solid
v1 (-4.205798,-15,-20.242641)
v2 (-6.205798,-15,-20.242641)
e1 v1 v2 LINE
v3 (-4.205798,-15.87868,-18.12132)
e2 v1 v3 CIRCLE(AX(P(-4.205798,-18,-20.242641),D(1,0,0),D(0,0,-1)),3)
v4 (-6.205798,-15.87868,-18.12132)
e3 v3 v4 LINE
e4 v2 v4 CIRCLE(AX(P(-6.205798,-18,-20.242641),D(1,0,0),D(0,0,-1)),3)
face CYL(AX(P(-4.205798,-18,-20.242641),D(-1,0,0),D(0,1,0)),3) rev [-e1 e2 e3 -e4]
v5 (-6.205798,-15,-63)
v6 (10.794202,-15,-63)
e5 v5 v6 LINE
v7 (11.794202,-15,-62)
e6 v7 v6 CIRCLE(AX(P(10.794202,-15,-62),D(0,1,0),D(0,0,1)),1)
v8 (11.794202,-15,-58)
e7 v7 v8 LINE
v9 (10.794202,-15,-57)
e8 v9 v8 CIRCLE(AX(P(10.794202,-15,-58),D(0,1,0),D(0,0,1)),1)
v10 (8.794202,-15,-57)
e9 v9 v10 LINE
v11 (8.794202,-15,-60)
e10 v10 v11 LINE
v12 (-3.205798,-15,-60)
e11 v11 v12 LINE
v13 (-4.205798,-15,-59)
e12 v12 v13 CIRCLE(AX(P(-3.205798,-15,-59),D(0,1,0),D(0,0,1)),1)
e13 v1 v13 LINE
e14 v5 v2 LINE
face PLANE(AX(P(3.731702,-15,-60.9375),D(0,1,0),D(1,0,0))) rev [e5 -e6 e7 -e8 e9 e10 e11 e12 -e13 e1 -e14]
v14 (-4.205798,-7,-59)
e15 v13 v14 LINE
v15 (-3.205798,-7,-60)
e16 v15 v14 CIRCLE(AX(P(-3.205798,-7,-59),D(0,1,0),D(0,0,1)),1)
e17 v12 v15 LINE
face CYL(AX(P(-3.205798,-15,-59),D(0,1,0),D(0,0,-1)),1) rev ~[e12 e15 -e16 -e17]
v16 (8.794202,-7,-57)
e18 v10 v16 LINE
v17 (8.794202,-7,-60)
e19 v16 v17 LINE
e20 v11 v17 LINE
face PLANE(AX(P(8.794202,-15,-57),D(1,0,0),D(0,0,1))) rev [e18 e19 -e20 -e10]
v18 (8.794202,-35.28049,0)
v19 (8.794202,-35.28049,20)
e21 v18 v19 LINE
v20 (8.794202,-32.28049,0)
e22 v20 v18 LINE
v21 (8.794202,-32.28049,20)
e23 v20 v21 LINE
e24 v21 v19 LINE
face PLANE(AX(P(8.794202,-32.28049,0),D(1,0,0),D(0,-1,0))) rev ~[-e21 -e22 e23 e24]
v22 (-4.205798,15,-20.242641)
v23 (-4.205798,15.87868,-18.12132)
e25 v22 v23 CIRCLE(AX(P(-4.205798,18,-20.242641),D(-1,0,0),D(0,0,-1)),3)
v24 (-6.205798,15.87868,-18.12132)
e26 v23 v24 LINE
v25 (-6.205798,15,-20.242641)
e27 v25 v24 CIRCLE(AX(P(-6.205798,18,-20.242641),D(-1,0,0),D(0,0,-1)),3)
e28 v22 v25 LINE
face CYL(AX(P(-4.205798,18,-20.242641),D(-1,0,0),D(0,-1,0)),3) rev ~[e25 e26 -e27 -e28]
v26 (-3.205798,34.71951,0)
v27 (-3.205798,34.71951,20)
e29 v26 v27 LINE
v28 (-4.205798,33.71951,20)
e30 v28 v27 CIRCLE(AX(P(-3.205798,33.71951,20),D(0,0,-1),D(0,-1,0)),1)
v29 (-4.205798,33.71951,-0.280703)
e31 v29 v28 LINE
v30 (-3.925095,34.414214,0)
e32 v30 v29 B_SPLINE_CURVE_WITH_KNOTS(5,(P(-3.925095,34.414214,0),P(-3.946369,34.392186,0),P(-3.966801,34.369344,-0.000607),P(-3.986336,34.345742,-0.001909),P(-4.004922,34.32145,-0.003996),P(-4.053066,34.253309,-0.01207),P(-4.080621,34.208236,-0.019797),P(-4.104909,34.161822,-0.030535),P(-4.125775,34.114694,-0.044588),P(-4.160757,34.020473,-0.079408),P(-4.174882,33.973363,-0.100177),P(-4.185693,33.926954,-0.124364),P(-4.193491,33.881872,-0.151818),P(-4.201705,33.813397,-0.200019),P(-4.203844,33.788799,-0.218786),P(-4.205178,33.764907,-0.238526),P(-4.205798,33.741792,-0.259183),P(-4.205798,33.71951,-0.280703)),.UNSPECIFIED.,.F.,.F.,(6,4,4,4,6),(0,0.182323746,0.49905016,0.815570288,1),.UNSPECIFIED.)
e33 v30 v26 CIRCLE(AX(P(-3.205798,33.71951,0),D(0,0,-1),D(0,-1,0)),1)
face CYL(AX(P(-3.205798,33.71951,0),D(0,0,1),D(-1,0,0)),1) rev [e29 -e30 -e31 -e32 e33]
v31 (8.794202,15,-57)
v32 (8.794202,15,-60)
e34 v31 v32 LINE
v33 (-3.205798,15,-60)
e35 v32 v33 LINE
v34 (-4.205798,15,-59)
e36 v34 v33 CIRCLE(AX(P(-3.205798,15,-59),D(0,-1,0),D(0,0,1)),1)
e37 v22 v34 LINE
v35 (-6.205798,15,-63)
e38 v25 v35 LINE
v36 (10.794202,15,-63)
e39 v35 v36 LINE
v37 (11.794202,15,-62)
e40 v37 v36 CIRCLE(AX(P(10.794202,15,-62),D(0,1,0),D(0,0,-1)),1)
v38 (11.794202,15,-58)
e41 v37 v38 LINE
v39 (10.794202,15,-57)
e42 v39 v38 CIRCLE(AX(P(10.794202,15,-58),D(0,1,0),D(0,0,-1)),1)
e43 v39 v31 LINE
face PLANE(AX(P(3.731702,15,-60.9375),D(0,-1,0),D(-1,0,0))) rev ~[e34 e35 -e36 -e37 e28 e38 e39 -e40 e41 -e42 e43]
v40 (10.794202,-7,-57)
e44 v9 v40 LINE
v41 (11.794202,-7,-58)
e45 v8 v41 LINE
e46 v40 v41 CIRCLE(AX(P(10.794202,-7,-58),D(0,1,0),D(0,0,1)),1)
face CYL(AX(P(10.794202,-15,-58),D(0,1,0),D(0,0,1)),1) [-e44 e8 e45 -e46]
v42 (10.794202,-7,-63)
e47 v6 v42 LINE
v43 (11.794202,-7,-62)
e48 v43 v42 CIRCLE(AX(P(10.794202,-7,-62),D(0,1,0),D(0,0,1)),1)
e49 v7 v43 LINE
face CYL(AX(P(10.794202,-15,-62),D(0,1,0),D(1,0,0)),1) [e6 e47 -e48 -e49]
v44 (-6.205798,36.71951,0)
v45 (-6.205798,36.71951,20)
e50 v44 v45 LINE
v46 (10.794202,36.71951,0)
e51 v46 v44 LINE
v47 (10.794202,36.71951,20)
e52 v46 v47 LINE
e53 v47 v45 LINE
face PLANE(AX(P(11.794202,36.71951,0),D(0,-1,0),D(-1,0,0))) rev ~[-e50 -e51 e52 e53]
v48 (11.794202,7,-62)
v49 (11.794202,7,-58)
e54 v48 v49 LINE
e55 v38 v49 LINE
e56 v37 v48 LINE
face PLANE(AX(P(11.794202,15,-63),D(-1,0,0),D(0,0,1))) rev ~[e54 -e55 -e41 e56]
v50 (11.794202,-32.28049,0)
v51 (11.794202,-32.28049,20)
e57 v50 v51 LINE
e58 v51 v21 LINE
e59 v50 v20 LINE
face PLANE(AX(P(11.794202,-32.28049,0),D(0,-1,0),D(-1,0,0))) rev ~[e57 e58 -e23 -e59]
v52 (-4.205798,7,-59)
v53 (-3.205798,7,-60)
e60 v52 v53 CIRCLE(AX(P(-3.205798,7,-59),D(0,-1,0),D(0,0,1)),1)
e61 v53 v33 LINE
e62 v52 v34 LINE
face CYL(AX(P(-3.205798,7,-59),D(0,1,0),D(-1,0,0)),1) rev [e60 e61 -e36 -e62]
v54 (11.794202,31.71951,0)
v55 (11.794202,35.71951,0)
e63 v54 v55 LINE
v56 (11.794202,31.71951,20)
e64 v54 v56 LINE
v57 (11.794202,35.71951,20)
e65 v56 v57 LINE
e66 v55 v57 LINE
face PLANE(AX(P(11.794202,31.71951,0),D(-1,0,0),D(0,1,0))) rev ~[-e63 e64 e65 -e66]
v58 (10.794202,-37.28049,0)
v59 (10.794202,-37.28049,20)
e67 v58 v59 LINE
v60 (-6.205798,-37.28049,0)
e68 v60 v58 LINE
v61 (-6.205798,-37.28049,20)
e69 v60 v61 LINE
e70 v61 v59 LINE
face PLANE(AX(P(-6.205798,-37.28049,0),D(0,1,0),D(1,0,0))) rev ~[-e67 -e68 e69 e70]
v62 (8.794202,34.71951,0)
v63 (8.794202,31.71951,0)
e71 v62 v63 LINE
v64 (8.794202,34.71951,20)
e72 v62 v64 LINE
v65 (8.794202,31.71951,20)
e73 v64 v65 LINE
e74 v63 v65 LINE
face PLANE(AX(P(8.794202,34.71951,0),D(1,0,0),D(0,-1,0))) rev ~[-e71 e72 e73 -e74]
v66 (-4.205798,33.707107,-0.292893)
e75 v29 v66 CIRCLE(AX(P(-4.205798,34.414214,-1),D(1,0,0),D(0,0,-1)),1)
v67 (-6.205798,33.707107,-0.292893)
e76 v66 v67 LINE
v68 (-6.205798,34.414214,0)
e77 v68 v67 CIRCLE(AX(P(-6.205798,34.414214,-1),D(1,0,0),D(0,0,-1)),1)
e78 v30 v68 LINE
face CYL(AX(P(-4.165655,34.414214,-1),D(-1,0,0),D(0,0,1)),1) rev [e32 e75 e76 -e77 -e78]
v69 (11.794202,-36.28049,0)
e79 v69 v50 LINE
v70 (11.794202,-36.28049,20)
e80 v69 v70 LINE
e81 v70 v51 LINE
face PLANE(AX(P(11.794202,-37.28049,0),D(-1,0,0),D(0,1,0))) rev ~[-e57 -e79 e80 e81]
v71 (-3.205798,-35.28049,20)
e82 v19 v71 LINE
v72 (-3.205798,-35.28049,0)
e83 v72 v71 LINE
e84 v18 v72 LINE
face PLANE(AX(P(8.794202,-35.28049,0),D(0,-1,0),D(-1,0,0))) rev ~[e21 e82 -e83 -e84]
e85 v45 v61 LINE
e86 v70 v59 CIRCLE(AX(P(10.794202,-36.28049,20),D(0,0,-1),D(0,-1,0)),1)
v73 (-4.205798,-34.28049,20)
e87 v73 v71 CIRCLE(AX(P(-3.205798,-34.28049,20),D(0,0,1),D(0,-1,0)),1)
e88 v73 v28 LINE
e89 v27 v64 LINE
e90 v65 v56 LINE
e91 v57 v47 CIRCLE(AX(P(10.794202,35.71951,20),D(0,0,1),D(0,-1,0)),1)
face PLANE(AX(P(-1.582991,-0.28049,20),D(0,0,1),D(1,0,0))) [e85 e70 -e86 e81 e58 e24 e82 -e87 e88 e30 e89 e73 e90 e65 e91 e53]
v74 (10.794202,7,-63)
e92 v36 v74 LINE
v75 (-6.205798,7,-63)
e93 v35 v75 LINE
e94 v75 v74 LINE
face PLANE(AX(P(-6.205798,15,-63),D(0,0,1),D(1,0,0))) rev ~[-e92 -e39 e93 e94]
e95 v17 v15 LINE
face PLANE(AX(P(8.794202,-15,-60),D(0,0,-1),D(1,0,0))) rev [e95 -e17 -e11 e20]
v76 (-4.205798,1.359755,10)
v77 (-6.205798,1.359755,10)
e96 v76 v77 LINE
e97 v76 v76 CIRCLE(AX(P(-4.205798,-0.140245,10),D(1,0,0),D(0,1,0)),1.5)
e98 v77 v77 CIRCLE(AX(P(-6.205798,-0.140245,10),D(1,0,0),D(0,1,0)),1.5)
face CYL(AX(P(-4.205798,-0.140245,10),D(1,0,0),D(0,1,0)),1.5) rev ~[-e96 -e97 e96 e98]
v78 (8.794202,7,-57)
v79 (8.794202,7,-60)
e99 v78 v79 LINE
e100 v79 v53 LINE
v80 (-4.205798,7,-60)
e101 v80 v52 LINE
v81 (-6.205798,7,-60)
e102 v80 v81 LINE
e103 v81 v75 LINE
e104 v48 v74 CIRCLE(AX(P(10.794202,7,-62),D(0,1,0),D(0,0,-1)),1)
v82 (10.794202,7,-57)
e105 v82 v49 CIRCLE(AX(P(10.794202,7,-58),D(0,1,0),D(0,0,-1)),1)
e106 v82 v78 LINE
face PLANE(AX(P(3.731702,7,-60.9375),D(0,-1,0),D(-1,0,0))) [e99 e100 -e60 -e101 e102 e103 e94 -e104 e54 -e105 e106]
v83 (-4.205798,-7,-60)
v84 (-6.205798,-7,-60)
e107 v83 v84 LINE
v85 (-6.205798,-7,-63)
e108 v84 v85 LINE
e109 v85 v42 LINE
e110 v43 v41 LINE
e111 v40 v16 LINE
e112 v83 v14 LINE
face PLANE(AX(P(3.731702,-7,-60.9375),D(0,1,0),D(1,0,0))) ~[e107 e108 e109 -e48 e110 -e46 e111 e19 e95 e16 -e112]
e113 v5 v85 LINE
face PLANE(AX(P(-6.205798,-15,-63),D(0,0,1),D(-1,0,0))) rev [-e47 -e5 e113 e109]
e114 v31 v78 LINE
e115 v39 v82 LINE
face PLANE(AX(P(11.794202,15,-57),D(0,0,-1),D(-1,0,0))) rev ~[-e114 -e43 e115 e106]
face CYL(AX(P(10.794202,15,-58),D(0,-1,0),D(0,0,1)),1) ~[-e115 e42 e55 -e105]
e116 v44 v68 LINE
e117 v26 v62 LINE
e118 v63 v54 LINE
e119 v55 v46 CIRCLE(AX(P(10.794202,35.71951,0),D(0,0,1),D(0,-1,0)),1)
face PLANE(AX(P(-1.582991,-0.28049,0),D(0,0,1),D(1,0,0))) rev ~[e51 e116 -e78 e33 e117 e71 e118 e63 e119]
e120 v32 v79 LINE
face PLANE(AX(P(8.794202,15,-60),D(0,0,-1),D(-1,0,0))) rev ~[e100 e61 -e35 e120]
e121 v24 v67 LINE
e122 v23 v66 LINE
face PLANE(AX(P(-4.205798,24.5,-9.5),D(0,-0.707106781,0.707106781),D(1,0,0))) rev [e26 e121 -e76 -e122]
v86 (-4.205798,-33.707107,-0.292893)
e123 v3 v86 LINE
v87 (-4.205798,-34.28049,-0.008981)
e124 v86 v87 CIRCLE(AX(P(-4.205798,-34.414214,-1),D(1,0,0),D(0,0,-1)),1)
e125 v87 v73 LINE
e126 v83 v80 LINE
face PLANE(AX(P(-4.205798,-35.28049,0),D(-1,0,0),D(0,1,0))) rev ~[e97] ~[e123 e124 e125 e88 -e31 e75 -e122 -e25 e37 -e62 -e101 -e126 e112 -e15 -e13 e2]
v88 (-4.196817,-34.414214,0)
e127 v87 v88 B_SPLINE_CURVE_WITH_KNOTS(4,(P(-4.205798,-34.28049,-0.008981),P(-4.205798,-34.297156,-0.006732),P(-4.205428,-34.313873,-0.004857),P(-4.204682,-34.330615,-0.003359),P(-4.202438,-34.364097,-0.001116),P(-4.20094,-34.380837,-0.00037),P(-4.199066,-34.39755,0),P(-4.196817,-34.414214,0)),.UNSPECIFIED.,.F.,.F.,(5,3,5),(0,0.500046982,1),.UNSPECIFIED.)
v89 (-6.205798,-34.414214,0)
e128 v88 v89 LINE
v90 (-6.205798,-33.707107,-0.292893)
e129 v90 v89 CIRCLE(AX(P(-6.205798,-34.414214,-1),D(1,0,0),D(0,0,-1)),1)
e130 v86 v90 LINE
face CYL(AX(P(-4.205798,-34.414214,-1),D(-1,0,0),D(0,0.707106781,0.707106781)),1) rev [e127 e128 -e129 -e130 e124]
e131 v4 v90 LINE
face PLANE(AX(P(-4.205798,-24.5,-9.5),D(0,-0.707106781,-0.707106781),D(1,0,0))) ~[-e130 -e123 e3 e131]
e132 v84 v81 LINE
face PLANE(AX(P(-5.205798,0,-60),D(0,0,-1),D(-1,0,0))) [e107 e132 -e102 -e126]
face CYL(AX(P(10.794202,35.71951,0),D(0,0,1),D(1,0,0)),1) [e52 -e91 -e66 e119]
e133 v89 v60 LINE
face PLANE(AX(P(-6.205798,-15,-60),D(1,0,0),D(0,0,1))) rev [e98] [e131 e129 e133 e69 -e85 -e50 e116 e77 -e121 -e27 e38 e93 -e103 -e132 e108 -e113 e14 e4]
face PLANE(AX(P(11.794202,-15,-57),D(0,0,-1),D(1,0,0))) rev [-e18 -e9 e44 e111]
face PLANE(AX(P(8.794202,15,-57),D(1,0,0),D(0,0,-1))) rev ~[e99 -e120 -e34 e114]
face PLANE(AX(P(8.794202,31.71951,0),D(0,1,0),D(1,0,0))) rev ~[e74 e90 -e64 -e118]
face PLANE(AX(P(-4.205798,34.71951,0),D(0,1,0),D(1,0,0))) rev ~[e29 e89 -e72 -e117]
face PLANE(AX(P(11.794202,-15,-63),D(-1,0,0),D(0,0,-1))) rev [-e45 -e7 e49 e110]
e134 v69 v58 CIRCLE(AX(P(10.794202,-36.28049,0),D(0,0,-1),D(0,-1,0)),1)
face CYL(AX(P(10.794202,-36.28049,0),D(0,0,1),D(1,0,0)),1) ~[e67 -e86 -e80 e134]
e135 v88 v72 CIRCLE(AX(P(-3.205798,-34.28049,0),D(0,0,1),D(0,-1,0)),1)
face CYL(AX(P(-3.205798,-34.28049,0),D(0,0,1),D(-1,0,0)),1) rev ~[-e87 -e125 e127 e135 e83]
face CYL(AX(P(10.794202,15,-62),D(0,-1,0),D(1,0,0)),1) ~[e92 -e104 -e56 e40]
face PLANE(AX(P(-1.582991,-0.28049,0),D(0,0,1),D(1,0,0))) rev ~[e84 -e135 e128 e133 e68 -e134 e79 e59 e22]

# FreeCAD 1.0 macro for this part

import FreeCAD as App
import Part
import Sketcher


def edges_at(feature, points):
    """Names of the edges that pass closest to the given points."""
    edges = feature.Shape.Edges
    near = lambda p: min(range(len(edges)), key=lambda i: edges[i].distToShape(Part.Vertex(*p))[0])
    return sorted({f"Edge{near(p) + 1}" for p in points})

doc = App.newDocument("Part")
body = doc.addObject("PartDesign::Body", "Body")

# Sketch on XY plane
sketch1 = doc.addObject("Sketcher::SketchObject", "Sketch")
body.addObject(sketch1)
sketch1.AttachmentSupport = (doc.XY_Plane, [""])
sketch1.MapMode = "FlatFace"
sketch1.addGeometry([
    Part.LineSegment(App.Vector(-4.2, -35.3, 0), App.Vector(-4.2, 34.7, 0)),  # 0
    Part.LineSegment(App.Vector(-4.2, 34.7, 0), App.Vector(8.8, 34.7, 0)),  # 1
    Part.LineSegment(App.Vector(8.8, 34.7, 0), App.Vector(8.8, 31.7, 0)),  # 2
    Part.LineSegment(App.Vector(8.8, 31.7, 0), App.Vector(11.8, 31.7, 0)),  # 3
    Part.LineSegment(App.Vector(11.8, 31.7, 0), App.Vector(11.8, 36.7, 0)),  # 4
    Part.LineSegment(App.Vector(11.8, 36.7, 0), App.Vector(-6.2, 36.7, 0)),  # 5
    Part.LineSegment(App.Vector(-6.2, 36.7, 0), App.Vector(-6.2, -37.3, 0)),  # 6
    Part.LineSegment(App.Vector(-6.2, -37.3, 0), App.Vector(11.8, -37.3, 0)),  # 7
    Part.LineSegment(App.Vector(11.8, -37.3, 0), App.Vector(11.8, -32.3, 0)),  # 8
    Part.LineSegment(App.Vector(11.8, -32.3, 0), App.Vector(8.8, -32.3, 0)),  # 9
    Part.LineSegment(App.Vector(8.8, -32.3, 0), App.Vector(8.8, -35.3, 0)),  # 10
    Part.LineSegment(App.Vector(8.8, -35.3, 0), App.Vector(-4.2, -35.3, 0)),  # 11
], False)
sketch1.addConstraint([
    Sketcher.Constraint("Coincident", 0, 2, 1, 1),
    Sketcher.Constraint("Coincident", 1, 2, 2, 1),
    Sketcher.Constraint("Coincident", 2, 2, 3, 1),
    Sketcher.Constraint("Coincident", 3, 2, 4, 1),
    Sketcher.Constraint("Coincident", 4, 2, 5, 1),
    Sketcher.Constraint("Coincident", 5, 2, 6, 1),
    Sketcher.Constraint("Coincident", 6, 2, 7, 1),
    Sketcher.Constraint("Coincident", 7, 2, 8, 1),
    Sketcher.Constraint("Coincident", 8, 2, 9, 1),
    Sketcher.Constraint("Coincident", 9, 2, 10, 1),
    Sketcher.Constraint("Coincident", 10, 2, 11, 1),
    Sketcher.Constraint("Coincident", 11, 2, 0, 1),
    Sketcher.Constraint("Vertical", 0),
    Sketcher.Constraint("Horizontal", 1),
    Sketcher.Constraint("Vertical", 2),
    Sketcher.Constraint("Horizontal", 3),
    Sketcher.Constraint("Vertical", 4),
    Sketcher.Constraint("Horizontal", 5),
    Sketcher.Constraint("Vertical", 6),
    Sketcher.Constraint("Horizontal", 7),
    Sketcher.Constraint("Vertical", 8),
    Sketcher.Constraint("Horizontal", 9),
    Sketcher.Constraint("Vertical", 10),
    Sketcher.Constraint("Horizontal", 11),
    Sketcher.Constraint("Vertical", 4, 2, 7, 2),
    Sketcher.Constraint("Vertical", 2, 2, 9, 2),
    Sketcher.Constraint("Equal", 9, 2),
    Sketcher.Constraint("Equal", 4, 8),
    Sketcher.Constraint("Equal", 2, 10),
    Sketcher.Constraint("DistanceX", 1, 1, 1, 2, 13.0),
    Sketcher.Constraint("DistanceX", 3, 1, 3, 2, 3.0),
    Sketcher.Constraint("DistanceX", 5, 2, 5, 1, 18.0),
    Sketcher.Constraint("DistanceY", 0, 1, 0, 2, 70.0),
    Sketcher.Constraint("DistanceY", 4, 1, 4, 2, 5.0),
    Sketcher.Constraint("DistanceX", 0, 2, -1, 1, 4.205798),
    Sketcher.Constraint("DistanceY", -1, 1, 0, 2, 34.71951),
])
pad1 = doc.addObject("PartDesign::Pad", "Pad")
body.addObject(pad1)
pad1.Profile = sketch1
pad1.Length = 20

# Sketch on XY plane
sketch2 = doc.addObject("Sketcher::SketchObject", "Sketch001")
body.addObject(sketch2)
sketch2.AttachmentSupport = (doc.XY_Plane, [""])
sketch2.MapMode = "FlatFace"
sketch2.addGeometry([
    Part.LineSegment(App.Vector(-4.2, 15, 0), App.Vector(-4.2, -15, 0)),
    Part.LineSegment(App.Vector(-4.2, -15, 0), App.Vector(-6.2, -15, 0)),
    Part.LineSegment(App.Vector(-6.2, -15, 0), App.Vector(-6.2, 15, 0)),
    Part.LineSegment(App.Vector(-6.2, 15, 0), App.Vector(-4.2, 15, 0)),
], False)
sketch2.addConstraint([
    Sketcher.Constraint("Coincident", 0, 2, 1, 1),
    Sketcher.Constraint("Coincident", 1, 2, 2, 1),
    Sketcher.Constraint("Coincident", 2, 2, 3, 1),
    Sketcher.Constraint("Coincident", 3, 2, 0, 1),
    Sketcher.Constraint("Vertical", 0),
    Sketcher.Constraint("Horizontal", 1),
    Sketcher.Constraint("Vertical", 2),
    Sketcher.Constraint("Horizontal", 3),
    Sketcher.Constraint("DistanceX", 1, 2, 1, 1, 2.0),
    Sketcher.Constraint("DistanceY", 0, 2, 0, 1, 30.0),
    Sketcher.Constraint("DistanceY", 0, 2, -1, 1, 15.0),
    Sketcher.Constraint("DistanceX", 0, 2, -1, 1, 4.205798),
])
pad2 = doc.addObject("PartDesign::Pad", "Pad001")
body.addObject(pad2)
pad2.Profile = sketch2
pad2.Length = 60
pad2.Reversed = True

# Sketch on XZ plane
sketch3 = doc.addObject("Sketcher::SketchObject", "Sketch002")
body.addObject(sketch3)
sketch3.AttachmentSupport = (doc.XZ_Plane, [""])
sketch3.MapMode = "FlatFace"
sketch3.AttachmentOffset = App.Placement(App.Vector(0, 0, -15), App.Rotation())
sketch3.addGeometry([
    Part.LineSegment(App.Vector(-6.2, -63, 0), App.Vector(-6.2, -60, 0)),  # 0
    Part.LineSegment(App.Vector(-6.2, -60, 0), App.Vector(8.8, -60, 0)),  # 1
    Part.LineSegment(App.Vector(8.8, -60, 0), App.Vector(8.8, -57, 0)),  # 2
    Part.LineSegment(App.Vector(8.8, -57, 0), App.Vector(11.8, -57, 0)),  # 3
    Part.LineSegment(App.Vector(11.8, -57, 0), App.Vector(11.8, -63, 0)),  # 4
    Part.LineSegment(App.Vector(11.8, -63, 0), App.Vector(-6.2, -63, 0)),  # 5
], False)
sketch3.addConstraint([
    Sketcher.Constraint("Coincident", 0, 2, 1, 1),
    Sketcher.Constraint("Coincident", 1, 2, 2, 1),
    Sketcher.Constraint("Coincident", 2, 2, 3, 1),
    Sketcher.Constraint("Coincident", 3, 2, 4, 1),
    Sketcher.Constraint("Coincident", 4, 2, 5, 1),
    Sketcher.Constraint("Coincident", 5, 2, 0, 1),
    Sketcher.Constraint("Vertical", 0),
    Sketcher.Constraint("Horizontal", 1),
    Sketcher.Constraint("Vertical", 2),
    Sketcher.Constraint("Horizontal", 3),
    Sketcher.Constraint("Vertical", 4),
    Sketcher.Constraint("Horizontal", 5),
    Sketcher.Constraint("Equal", 3, 0),
    Sketcher.Constraint("Equal", 0, 2),
    Sketcher.Constraint("DistanceX", 1, 1, 1, 2, 15.0),
    Sketcher.Constraint("DistanceX", 3, 1, 3, 2, 3.0),
    Sketcher.Constraint("DistanceY", 0, 2, -1, 1, 60.0),
    Sketcher.Constraint("DistanceX", 0, 2, -1, 1, 6.205798),
])
pad3 = doc.addObject("PartDesign::Pad", "Pad002")
body.addObject(pad3)
pad3.Profile = sketch3
pad3.Length = 8
doc.recompute()

mirrored = doc.addObject("PartDesign::Mirrored", "Mirrored")
body.addObject(mirrored)
mirrored.Originals = [pad3]
mirrored.MirrorPlane = (doc.XZ_Plane, [""])
body.Tip = mirrored
doc.recompute()

fillet = doc.addObject("PartDesign::Fillet", "Fillet")
body.addObject(fillet)
fillet.Base = (mirrored, edges_at(mirrored, [
    (-4.206, 34.72, 10),
    (-4.206, -35.28, 10),
    (11.794, -37.28, 10),
    (11.794, 36.72, 10),
    (-4.206, 11, -60),
    (11.794, 11, -63),
    (11.794, 11, -57),
    (-4.206, -11, -60),
    (11.794, -11, -57),
    (11.794, -11, -63),
]))
fillet.Radius = 1

# Sketch on YZ plane
sketch4 = doc.addObject("Sketcher::SketchObject", "Sketch003")
body.addObject(sketch4)
sketch4.AttachmentSupport = (doc.YZ_Plane, [""])
sketch4.MapMode = "FlatFace"
sketch4.AttachmentOffset = App.Placement(App.Vector(0, 0, -4.205798), App.Rotation())
sketch4.addGeometry(Part.Circle(App.Vector(-0.1, 10, 0), App.Vector(0, 0, 1), 1.5), False)
sketch4.addConstraint([
    Sketcher.Constraint("Diameter", 0, 3.0),
    Sketcher.Constraint("DistanceY", -1, 1, 0, 3, 10.0),
    Sketcher.Constraint("DistanceX", 0, 3, -1, 1, 0.140245),
])
pocket1 = doc.addObject("PartDesign::Pocket", "Pocket")
body.addObject(pocket1)
pocket1.Profile = sketch4
pocket1.Length = 8
doc.recompute()

chamfer = doc.addObject("PartDesign::Chamfer", "Chamfer")
body.addObject(chamfer)
chamfer.Base = (pocket1, edges_at(pocket1, [(-5.206, -15, 0), (-5.206, 15, 0)]))
chamfer.Size = 19
doc.recompute()

fillet2 = doc.addObject("PartDesign::Fillet", "Fillet001")
body.addObject(fillet2)
fillet2.Base = (chamfer, edges_at(chamfer, [(-5.206, -15, -19), (-5.206, 15, -19)]))
fillet2.Radius = 3
doc.recompute()

fillet3 = doc.addObject("PartDesign::Fillet", "Fillet002")
body.addObject(fillet3)
fillet3.Base = (fillet2, edges_at(fillet2, [(-5.206, -34, 0), (-5.186, 34, 0)]))
fillet3.Radius = 1

doc.recompute()
